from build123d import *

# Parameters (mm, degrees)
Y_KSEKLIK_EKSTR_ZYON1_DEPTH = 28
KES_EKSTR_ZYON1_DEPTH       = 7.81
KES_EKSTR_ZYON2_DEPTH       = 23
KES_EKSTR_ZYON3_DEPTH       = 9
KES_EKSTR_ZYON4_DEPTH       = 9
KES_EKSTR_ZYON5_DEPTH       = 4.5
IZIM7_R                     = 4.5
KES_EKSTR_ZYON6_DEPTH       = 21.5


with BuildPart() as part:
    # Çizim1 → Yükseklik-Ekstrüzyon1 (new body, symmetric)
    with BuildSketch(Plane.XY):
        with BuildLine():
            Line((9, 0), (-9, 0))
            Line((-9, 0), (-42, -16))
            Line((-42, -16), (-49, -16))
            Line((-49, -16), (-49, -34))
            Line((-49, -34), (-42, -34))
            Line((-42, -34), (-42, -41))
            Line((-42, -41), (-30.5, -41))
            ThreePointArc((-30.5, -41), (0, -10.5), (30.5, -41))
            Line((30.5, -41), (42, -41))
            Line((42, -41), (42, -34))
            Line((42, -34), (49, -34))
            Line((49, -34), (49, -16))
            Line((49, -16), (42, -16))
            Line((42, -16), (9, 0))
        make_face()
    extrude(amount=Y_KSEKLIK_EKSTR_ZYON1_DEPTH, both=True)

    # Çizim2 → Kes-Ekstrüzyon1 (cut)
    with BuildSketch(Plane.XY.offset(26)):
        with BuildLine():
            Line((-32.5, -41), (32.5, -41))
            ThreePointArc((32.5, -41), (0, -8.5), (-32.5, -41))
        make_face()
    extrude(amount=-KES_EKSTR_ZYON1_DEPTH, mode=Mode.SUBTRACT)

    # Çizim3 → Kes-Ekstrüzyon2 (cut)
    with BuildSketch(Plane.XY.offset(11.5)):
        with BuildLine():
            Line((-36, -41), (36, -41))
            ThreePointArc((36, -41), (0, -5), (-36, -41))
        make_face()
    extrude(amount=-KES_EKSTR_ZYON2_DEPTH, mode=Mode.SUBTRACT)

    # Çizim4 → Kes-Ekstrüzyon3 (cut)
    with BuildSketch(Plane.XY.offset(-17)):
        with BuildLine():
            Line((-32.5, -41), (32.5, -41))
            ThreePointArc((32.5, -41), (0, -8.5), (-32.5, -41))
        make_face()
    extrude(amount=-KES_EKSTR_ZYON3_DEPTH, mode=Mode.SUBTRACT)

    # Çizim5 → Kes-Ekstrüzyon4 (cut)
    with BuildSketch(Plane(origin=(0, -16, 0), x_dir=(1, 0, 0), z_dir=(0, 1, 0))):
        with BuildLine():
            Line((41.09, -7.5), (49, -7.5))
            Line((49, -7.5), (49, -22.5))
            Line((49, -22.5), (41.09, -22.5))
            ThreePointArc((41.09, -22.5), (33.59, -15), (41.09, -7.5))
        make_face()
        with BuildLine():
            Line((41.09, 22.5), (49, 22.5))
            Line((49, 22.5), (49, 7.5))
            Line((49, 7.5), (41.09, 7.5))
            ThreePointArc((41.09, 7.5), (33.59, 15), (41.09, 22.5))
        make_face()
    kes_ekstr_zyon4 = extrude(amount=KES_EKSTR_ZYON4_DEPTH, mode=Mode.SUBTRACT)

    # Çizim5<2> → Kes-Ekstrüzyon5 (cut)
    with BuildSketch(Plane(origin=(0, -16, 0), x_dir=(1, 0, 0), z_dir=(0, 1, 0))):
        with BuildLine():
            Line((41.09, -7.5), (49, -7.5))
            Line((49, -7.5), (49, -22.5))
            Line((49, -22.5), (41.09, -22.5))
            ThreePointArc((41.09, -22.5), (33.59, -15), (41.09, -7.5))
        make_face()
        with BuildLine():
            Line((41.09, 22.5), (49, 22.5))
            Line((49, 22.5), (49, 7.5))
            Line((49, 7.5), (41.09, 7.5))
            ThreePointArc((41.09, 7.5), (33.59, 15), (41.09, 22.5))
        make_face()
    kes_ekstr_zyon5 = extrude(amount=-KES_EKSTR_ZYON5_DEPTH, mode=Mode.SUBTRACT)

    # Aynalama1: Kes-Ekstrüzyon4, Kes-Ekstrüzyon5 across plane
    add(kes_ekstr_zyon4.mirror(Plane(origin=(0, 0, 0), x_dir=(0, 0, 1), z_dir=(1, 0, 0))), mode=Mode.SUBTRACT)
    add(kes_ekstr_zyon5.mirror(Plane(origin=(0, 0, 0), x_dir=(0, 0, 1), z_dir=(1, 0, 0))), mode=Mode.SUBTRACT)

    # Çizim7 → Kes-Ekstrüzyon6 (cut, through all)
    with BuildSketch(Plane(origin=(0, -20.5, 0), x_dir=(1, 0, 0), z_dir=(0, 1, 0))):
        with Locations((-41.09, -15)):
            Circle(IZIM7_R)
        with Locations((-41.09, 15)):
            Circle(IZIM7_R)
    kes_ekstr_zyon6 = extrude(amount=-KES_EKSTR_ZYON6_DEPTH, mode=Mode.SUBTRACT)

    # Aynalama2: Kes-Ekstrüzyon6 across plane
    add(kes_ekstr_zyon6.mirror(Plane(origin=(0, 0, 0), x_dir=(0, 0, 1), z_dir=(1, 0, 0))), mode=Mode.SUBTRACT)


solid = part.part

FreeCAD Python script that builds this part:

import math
import FreeCAD as App
import Part
import Sketcher

doc = App.newDocument("Part")
params = doc.addObject("Spreadsheet::Sheet", "Params")
for row, (alias, value) in enumerate([
    ("sketch1_radius", "30.5 mm"),
    ("sketch1_width", "18 mm"),
    ("sketch1_width2", "7 mm"),
    ("sketch1_width3", "11.5 mm"),
    ("pad1_length", "56 mm"),
    ("sketch2_radius", "32.5 mm"),
    ("pocket1_length", "7.81 mm"),
    ("sketch3_radius", "36 mm"),
    ("pocket2_length", "23 mm"),
    ("sketch4_radius", "32.5 mm"),
    ("pocket3_length", "9 mm"),
    ("sketch5_radius", "7.5 mm"),
    ("sketch5_width", "7.91 mm"),
    ("pocket4_length", "9 mm"),
    ("sketch6_radius", "7.5 mm"),
    ("sketch6_width", "7.91 mm"),
    ("pocket5_length", "4.5 mm"),
    ("sketch7_diameter", "9 mm"),
], start=1):
    params.set(f"A{row}", alias)
    params.set(f"B{row}", "=" + value)
    params.setAlias(f"B{row}", alias)

body = doc.addObject("PartDesign::Body", "Body")

sketch1 = body.newObject("Sketcher::SketchObject", "Sketch")
sketch1.AttachmentSupport = (doc.getObject("XY_Plane"), [""])
sketch1.MapMode = "FlatFace"
sketch1.addGeometry(Part.LineSegment(App.Vector(9, 0, 0), App.Vector(-9, 0, 0)), False)
sketch1.addGeometry(Part.LineSegment(App.Vector(-9, 0, 0), App.Vector(-42, -16, 0)), False)
sketch1.addGeometry(Part.LineSegment(App.Vector(-42, -16, 0), App.Vector(-49, -16, 0)), False)
sketch1.addGeometry(Part.LineSegment(App.Vector(-49, -16, 0), App.Vector(-49, -34, 0)), False)
sketch1.addGeometry(Part.LineSegment(App.Vector(-49, -34, 0), App.Vector(-42, -34, 0)), False)
sketch1.addGeometry(Part.LineSegment(App.Vector(-42, -34, 0), App.Vector(-42, -41, 0)), False)
sketch1.addGeometry(Part.LineSegment(App.Vector(-42, -41, 0), App.Vector(-30.5, -41, 0)), False)
sketch1.addGeometry(Part.ArcOfCircle(Part.Circle(App.Vector(0, -41, 0), App.Vector(0, 0, 1), 30.5), math.radians(0), math.radians(180)), False)
sketch1.addGeometry(Part.LineSegment(App.Vector(30.5, -41, 0), App.Vector(42, -41, 0)), False)
sketch1.addGeometry(Part.LineSegment(App.Vector(42, -41, 0), App.Vector(42, -34, 0)), False)
sketch1.addGeometry(Part.LineSegment(App.Vector(42, -34, 0), App.Vector(49, -34, 0)), False)
sketch1.addGeometry(Part.LineSegment(App.Vector(49, -34, 0), App.Vector(49, -16, 0)), False)
sketch1.addGeometry(Part.LineSegment(App.Vector(49, -16, 0), App.Vector(42, -16, 0)), False)
sketch1.addGeometry(Part.LineSegment(App.Vector(42, -16, 0), App.Vector(9, 0, 0)), False)
sketch1.addConstraint(Sketcher.Constraint("Coincident", 0, 2, 1, 1))
sketch1.addConstraint(Sketcher.Constraint("Coincident", 1, 2, 2, 1))
sketch1.addConstraint(Sketcher.Constraint("Coincident", 2, 2, 3, 1))
sketch1.addConstraint(Sketcher.Constraint("Coincident", 3, 2, 4, 1))
sketch1.addConstraint(Sketcher.Constraint("Coincident", 4, 2, 5, 1))
sketch1.addConstraint(Sketcher.Constraint("Coincident", 5, 2, 6, 1))
sketch1.addConstraint(Sketcher.Constraint("Coincident", 6, 2, 7, 2))
sketch1.addConstraint(Sketcher.Constraint("Coincident", 7, 1, 8, 1))
sketch1.addConstraint(Sketcher.Constraint("Coincident", 8, 2, 9, 1))
sketch1.addConstraint(Sketcher.Constraint("Coincident", 9, 2, 10, 1))
sketch1.addConstraint(Sketcher.Constraint("Coincident", 10, 2, 11, 1))
sketch1.addConstraint(Sketcher.Constraint("Coincident", 11, 2, 12, 1))
sketch1.addConstraint(Sketcher.Constraint("Coincident", 12, 2, 13, 1))
sketch1.addConstraint(Sketcher.Constraint("Coincident", 13, 2, 0, 1))
sketch1.addConstraint(Sketcher.Constraint("Horizontal", 0))
sketch1.addConstraint(Sketcher.Constraint("Horizontal", 2))
sketch1.addConstraint(Sketcher.Constraint("Vertical", 3))
sketch1.addConstraint(Sketcher.Constraint("Horizontal", 4))
sketch1.addConstraint(Sketcher.Constraint("Vertical", 5))
sketch1.addConstraint(Sketcher.Constraint("Horizontal", 6))
sketch1.addConstraint(Sketcher.Constraint("Horizontal", 8))
sketch1.addConstraint(Sketcher.Constraint("Vertical", 9))
sketch1.addConstraint(Sketcher.Constraint("Horizontal", 10))
sketch1.addConstraint(Sketcher.Constraint("Vertical", 11))
sketch1.addConstraint(Sketcher.Constraint("Horizontal", 12))
sketch1.addConstraint(Sketcher.Constraint("Symmetric", 0, 2, 13, 2, -1, 1))
sketch1.addConstraint(Sketcher.Constraint("Symmetric", 6, 2, 7, 1, -2))
sketch1.addConstraint(Sketcher.Constraint("Symmetric", 4, 2, 9, 2, -2))
sketch1.addConstraint(Sketcher.Constraint("Symmetric", 2, 2, 11, 2, -2))
sketch1.addConstraint(Sketcher.Constraint("Horizontal", 7, 3, 5, 2))
sketch1.addConstraint(Sketcher.Constraint("Vertical", 1, 2, 4, 2))
sketch1.addConstraint(Sketcher.Constraint("Vertical", 9, 2, 12, 2))
sketch1.addConstraint(Sketcher.Constraint("Equal", 0, 3))
sketch1.addConstraint(Sketcher.Constraint("Equal", 12, 5))
sketch1.addConstraint(Sketcher.Constraint("Radius", 7, 30.5))
sketch1.addConstraint(Sketcher.Constraint("DistanceX", 0, 2, 0, 1, 18.0))
sketch1.addConstraint(Sketcher.Constraint("DistanceX", 2, 2, 2, 1, 7.0))
sketch1.addConstraint(Sketcher.Constraint("DistanceX", 6, 1, 6, 2, 11.5))
sketch1.addConstraint(Sketcher.Constraint("DistanceY", 7, 3, -1, 1, 41.0))
sketch1.setExpression("Constraints[34]", "Params.sketch1_radius")
sketch1.setExpression("Constraints[35]", "Params.sketch1_width")
sketch1.setExpression("Constraints[36]", "Params.sketch1_width2")
sketch1.setExpression("Constraints[37]", "Params.sketch1_width3")
pad1 = body.newObject("PartDesign::Pad", "Pad")
pad1.Profile = sketch1
pad1.setExpression("Length", "Params.pad1_length")
pad1.Midplane = True

sketch2 = body.newObject("Sketcher::SketchObject", "Sketch001")
sketch2.AttachmentSupport = (doc.getObject("XY_Plane"), [""])
sketch2.MapMode = "FlatFace"
sketch2.AttachmentOffset = App.Placement(App.Vector(0, 0, 26), App.Rotation())
sketch2.addGeometry(Part.LineSegment(App.Vector(-32.5, -41, 0), App.Vector(32.5, -41, 0)), False)
sketch2.addGeometry(Part.ArcOfCircle(Part.Circle(App.Vector(0, -41, 0), App.Vector(0, 0, 1), 32.5), math.radians(0), math.radians(180)), False)
sketch2.addConstraint(Sketcher.Constraint("Coincident", 0, 1, 1, 2))
sketch2.addConstraint(Sketcher.Constraint("Coincident", 1, 1, 0, 2))
sketch2.addConstraint(Sketcher.Constraint("Horizontal", 0))
sketch2.addConstraint(Sketcher.Constraint("PointOnObject", 1, 3, -2))
sketch2.addConstraint(Sketcher.Constraint("Horizontal", 1, 3, 0, 1))
sketch2.addConstraint(Sketcher.Constraint("Radius", 1, 32.5))
sketch2.addConstraint(Sketcher.Constraint("DistanceY", 1, 3, -1, 1, 41.0))
sketch2.setExpression("Constraints[5]", "Params.sketch2_radius")
pocket1 = body.newObject("PartDesign::Pocket", "Pocket")
pocket1.Profile = sketch2
pocket1.setExpression("Length", "Params.pocket1_length")

sketch3 = body.newObject("Sketcher::SketchObject", "Sketch002")
sketch3.AttachmentSupport = (doc.getObject("XY_Plane"), [""])
sketch3.MapMode = "FlatFace"
sketch3.AttachmentOffset = App.Placement(App.Vector(0, 0, 11.5), App.Rotation())
sketch3.addGeometry(Part.LineSegment(App.Vector(-36, -41, 0), App.Vector(36, -41, 0)), False)
sketch3.addGeometry(Part.ArcOfCircle(Part.Circle(App.Vector(0, -41, 0), App.Vector(0, 0, 1), 36), math.radians(0), math.radians(180)), False)
sketch3.addConstraint(Sketcher.Constraint("Coincident", 0, 1, 1, 2))
sketch3.addConstraint(Sketcher.Constraint("Coincident", 1, 1, 0, 2))
sketch3.addConstraint(Sketcher.Constraint("Horizontal", 0))
sketch3.addConstraint(Sketcher.Constraint("PointOnObject", 1, 3, -2))
sketch3.addConstraint(Sketcher.Constraint("Horizontal", 1, 3, 0, 1))
sketch3.addConstraint(Sketcher.Constraint("Radius", 1, 36.0))
sketch3.addConstraint(Sketcher.Constraint("DistanceY", 1, 3, -1, 1, 41.0))
sketch3.setExpression("Constraints[5]", "Params.sketch3_radius")
pocket2 = body.newObject("PartDesign::Pocket", "Pocket001")
pocket2.Profile = sketch3
pocket2.setExpression("Length", "Params.pocket2_length")

sketch4 = body.newObject("Sketcher::SketchObject", "Sketch003")
sketch4.AttachmentSupport = (doc.getObject("XY_Plane"), [""])
sketch4.MapMode = "FlatFace"
sketch4.AttachmentOffset = App.Placement(App.Vector(0, 0, -17), App.Rotation())
sketch4.addGeometry(Part.LineSegment(App.Vector(-32.5, -41, 0), App.Vector(32.5, -41, 0)), False)
sketch4.addGeometry(Part.ArcOfCircle(Part.Circle(App.Vector(0, -41, 0), App.Vector(0, 0, 1), 32.5), math.radians(0), math.radians(180)), False)
sketch4.addConstraint(Sketcher.Constraint("Coincident", 0, 1, 1, 2))
sketch4.addConstraint(Sketcher.Constraint("Coincident", 1, 1, 0, 2))
sketch4.addConstraint(Sketcher.Constraint("Horizontal", 0))
sketch4.addConstraint(Sketcher.Constraint("PointOnObject", 1, 3, -2))
sketch4.addConstraint(Sketcher.Constraint("Horizontal", 1, 3, 0, 1))
sketch4.addConstraint(Sketcher.Constraint("Radius", 1, 32.5))
sketch4.addConstraint(Sketcher.Constraint("DistanceY", 1, 3, -1, 1, 41.0))
sketch4.setExpression("Constraints[5]", "Params.sketch4_radius")
pocket3 = body.newObject("PartDesign::Pocket", "Pocket002")
pocket3.Profile = sketch4
pocket3.setExpression("Length", "Params.pocket3_length")

sketch5 = body.newObject("Sketcher::SketchObject", "Sketch004")
sketch5.AttachmentSupport = (doc.getObject("XZ_Plane"), [""])
sketch5.MapMode = "FlatFace"
sketch5.AttachmentOffset = App.Placement(App.Vector(0, 0, 16), App.Rotation())
sketch5.addGeometry(Part.LineSegment(App.Vector(49, 7.5, 0), App.Vector(41.09, 7.5, 0)), False)
sketch5.addGeometry(Part.ArcOfCircle(Part.Circle(App.Vector(41.09, 15, 0), App.Vector(0, 0, 1), 7.5), math.radians(90), math.radians(270)), False)
sketch5.addGeometry(Part.LineSegment(App.Vector(41.09, 22.5, 0), App.Vector(49, 22.5, 0)), False)
sketch5.addGeometry(Part.LineSegment(App.Vector(49, 22.5, 0), App.Vector(49, 7.5, 0)), False)
sketch5.addGeometry(Part.LineSegment(App.Vector(49, -22.5, 0), App.Vector(41.09, -22.5, 0)), False)
sketch5.addGeometry(Part.ArcOfCircle(Part.Circle(App.Vector(41.09, -15, 0), App.Vector(0, 0, 1), 7.5), math.radians(90), math.radians(270)), False)
sketch5.addGeometry(Part.LineSegment(App.Vector(41.09, -7.5, 0), App.Vector(49, -7.5, 0)), False)
sketch5.addGeometry(Part.LineSegment(App.Vector(49, -7.5, 0), App.Vector(49, -22.5, 0)), False)
sketch5.addConstraint(Sketcher.Constraint("Tangent", 0, 2, 1, 2))
sketch5.addConstraint(Sketcher.Constraint("Tangent", 1, 1, 2, 1))
sketch5.addConstraint(Sketcher.Constraint("Coincident", 2, 2, 3, 1))
sketch5.addConstraint(Sketcher.Constraint("Coincident", 3, 2, 0, 1))
sketch5.addConstraint(Sketcher.Constraint("Tangent", 4, 2, 5, 2))
sketch5.addConstraint(Sketcher.Constraint("Tangent", 5, 1, 6, 1))
sketch5.addConstraint(Sketcher.Constraint("Coincident", 6, 2, 7, 1))
sketch5.addConstraint(Sketcher.Constraint("Coincident", 7, 2, 4, 1))
sketch5.addConstraint(Sketcher.Constraint("Horizontal", 0))
sketch5.addConstraint(Sketcher.Constraint("Horizontal", 2))
sketch5.addConstraint(Sketcher.Constraint("Vertical", 3))
sketch5.addConstraint(Sketcher.Constraint("Horizontal", 4))
sketch5.addConstraint(Sketcher.Constraint("Horizontal", 6))
sketch5.addConstraint(Sketcher.Constraint("Vertical", 7))
sketch5.addConstraint(Sketcher.Constraint("Equal", 1, 5))
sketch5.addConstraint(Sketcher.Constraint("Symmetric", 1, 3, 5, 3, -1))
sketch5.addConstraint(Sketcher.Constraint("Vertical", 3, 2, 6, 2))
sketch5.addConstraint(Sketcher.Constraint("Radius", 1, 7.5))
sketch5.addConstraint(Sketcher.Constraint("DistanceY", -1, 1, 1, 3, 15.0))
sketch5.addConstraint(Sketcher.Constraint("DistanceX", -1, 1, 2, 2, 49.0))
sketch5.addConstraint(Sketcher.Constraint("DistanceX", 0, 2, 0, 1, 7.91))
sketch5.setExpression("Constraints[17]", "Params.sketch5_radius")
sketch5.setExpression("Constraints[20]", "Params.sketch5_width")
pocket4 = body.newObject("PartDesign::Pocket", "Pocket003")
pocket4.Profile = sketch5
pocket4.setExpression("Length", "Params.pocket4_length")

sketch6 = body.newObject("Sketcher::SketchObject", "Sketch005")
sketch6.AttachmentSupport = (doc.getObject("XZ_Plane"), [""])
sketch6.MapMode = "FlatFace"
sketch6.AttachmentOffset = App.Placement(App.Vector(0, 0, 16), App.Rotation())
sketch6.addGeometry(Part.LineSegment(App.Vector(49, 7.5, 0), App.Vector(41.09, 7.5, 0)), False)
sketch6.addGeometry(Part.ArcOfCircle(Part.Circle(App.Vector(41.09, 15, 0), App.Vector(0, 0, 1), 7.5), math.radians(90), math.radians(270)), False)
sketch6.addGeometry(Part.LineSegment(App.Vector(41.09, 22.5, 0), App.Vector(49, 22.5, 0)), False)
sketch6.addGeometry(Part.LineSegment(App.Vector(49, 22.5, 0), App.Vector(49, 7.5, 0)), False)
sketch6.addGeometry(Part.LineSegment(App.Vector(49, -22.5, 0), App.Vector(41.09, -22.5, 0)), False)
sketch6.addGeometry(Part.ArcOfCircle(Part.Circle(App.Vector(41.09, -15, 0), App.Vector(0, 0, 1), 7.5), math.radians(90), math.radians(270)), False)
sketch6.addGeometry(Part.LineSegment(App.Vector(41.09, -7.5, 0), App.Vector(49, -7.5, 0)), False)
sketch6.addGeometry(Part.LineSegment(App.Vector(49, -7.5, 0), App.Vector(49, -22.5, 0)), False)
sketch6.addConstraint(Sketcher.Constraint("Tangent", 0, 2, 1, 2))
sketch6.addConstraint(Sketcher.Constraint("Tangent", 1, 1, 2, 1))
sketch6.addConstraint(Sketcher.Constraint("Coincident", 2, 2, 3, 1))
sketch6.addConstraint(Sketcher.Constraint("Coincident", 3, 2, 0, 1))
sketch6.addConstraint(Sketcher.Constraint("Tangent", 4, 2, 5, 2))
sketch6.addConstraint(Sketcher.Constraint("Tangent", 5, 1, 6, 1))
sketch6.addConstraint(Sketcher.Constraint("Coincident", 6, 2, 7, 1))
sketch6.addConstraint(Sketcher.Constraint("Coincident", 7, 2, 4, 1))
sketch6.addConstraint(Sketcher.Constraint("Horizontal", 0))
sketch6.addConstraint(Sketcher.Constraint("Horizontal", 2))
sketch6.addConstraint(Sketcher.Constraint("Vertical", 3))
sketch6.addConstraint(Sketcher.Constraint("Horizontal", 4))
sketch6.addConstraint(Sketcher.Constraint("Horizontal", 6))
sketch6.addConstraint(Sketcher.Constraint("Vertical", 7))
sketch6.addConstraint(Sketcher.Constraint("Equal", 1, 5))
sketch6.addConstraint(Sketcher.Constraint("Symmetric", 1, 3, 5, 3, -1))
sketch6.addConstraint(Sketcher.Constraint("Vertical", 3, 2, 6, 2))
sketch6.addConstraint(Sketcher.Constraint("Radius", 1, 7.5))
sketch6.addConstraint(Sketcher.Constraint("DistanceY", -1, 1, 1, 3, 15.0))
sketch6.addConstraint(Sketcher.Constraint("DistanceX", -1, 1, 2, 2, 49.0))
sketch6.addConstraint(Sketcher.Constraint("DistanceX", 0, 2, 0, 1, 7.91))
sketch6.setExpression("Constraints[17]", "Params.sketch6_radius")
sketch6.setExpression("Constraints[20]", "Params.sketch6_width")
pocket5 = body.newObject("PartDesign::Pocket", "Pocket004")
pocket5.Profile = sketch6
pocket5.setExpression("Length", "Params.pocket5_length")
pocket5.Reversed = True
doc.recompute()

mirrored = body.newObject("PartDesign::Mirrored", "Mirrored")
mirrored.Originals = [pocket4, pocket5]
mirrored.MirrorPlane = (doc.getObject("YZ_Plane"), [""])
body.Tip = mirrored

sketch7 = body.newObject("Sketcher::SketchObject", "Sketch006")
sketch7.AttachmentSupport = (doc.getObject("XZ_Plane"), [""])
sketch7.MapMode = "FlatFace"
sketch7.AttachmentOffset = App.Placement(App.Vector(0, 0, 20.5), App.Rotation())
sketch7.addGeometry(Part.Circle(App.Vector(-41.09, 15, 0), App.Vector(0, 0, 1), 4.5), False)
sketch7.addGeometry(Part.Circle(App.Vector(-41.09, -15, 0), App.Vector(0, 0, 1), 4.5), False)
sketch7.addConstraint(Sketcher.Constraint("Equal", 0, 1))
sketch7.addConstraint(Sketcher.Constraint("Symmetric", 0, 3, 1, 3, -1))
sketch7.addConstraint(Sketcher.Constraint("Diameter", 0, 9.0))
sketch7.addConstraint(Sketcher.Constraint("DistanceY", -1, 1, 0, 3, 15.0))
sketch7.addConstraint(Sketcher.Constraint("DistanceX", 0, 3, -1, 1, 41.09))
sketch7.setExpression("Constraints[2]", "Params.sketch7_diameter")
pocket6 = body.newObject("PartDesign::Pocket", "Pocket005")
pocket6.Profile = sketch7
pocket6.Type = "ThroughAll"
pocket6.Reversed = True
doc.recompute()

mirrored2 = body.newObject("PartDesign::Mirrored", "Mirrored001")
mirrored2.Originals = [pocket6]
mirrored2.MirrorPlane = (doc.getObject("YZ_Plane"), [""])
body.Tip = mirrored2

doc.recompute()
